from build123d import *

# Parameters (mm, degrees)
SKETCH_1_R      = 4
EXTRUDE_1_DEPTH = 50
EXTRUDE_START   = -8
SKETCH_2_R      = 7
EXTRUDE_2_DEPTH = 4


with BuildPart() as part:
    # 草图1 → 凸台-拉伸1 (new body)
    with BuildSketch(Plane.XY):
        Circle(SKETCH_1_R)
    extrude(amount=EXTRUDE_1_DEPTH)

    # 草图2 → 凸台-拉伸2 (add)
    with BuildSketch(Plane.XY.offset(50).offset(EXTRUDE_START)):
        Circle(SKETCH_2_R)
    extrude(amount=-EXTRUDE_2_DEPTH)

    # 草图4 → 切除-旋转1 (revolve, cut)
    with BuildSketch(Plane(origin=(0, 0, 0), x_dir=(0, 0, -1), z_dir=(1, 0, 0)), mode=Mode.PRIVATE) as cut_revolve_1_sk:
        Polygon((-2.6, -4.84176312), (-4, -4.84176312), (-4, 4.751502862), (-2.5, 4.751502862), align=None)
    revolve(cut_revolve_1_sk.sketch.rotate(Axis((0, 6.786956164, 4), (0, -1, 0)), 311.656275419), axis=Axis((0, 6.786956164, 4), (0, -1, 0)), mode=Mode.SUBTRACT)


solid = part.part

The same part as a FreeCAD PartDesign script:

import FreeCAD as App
import Part
import Sketcher

doc = App.newDocument("Part")
body = doc.addObject("PartDesign::Body", "Body")

# Sketch on XY plane
sketch1 = doc.addObject("Sketcher::SketchObject", "Sketch")
body.addObject(sketch1)
sketch1.AttachmentSupport = (doc.XY_Plane, [""])
sketch1.MapMode = "FlatFace"
sketch1.addGeometry(Part.Circle(App.Vector(0, 0, 0), App.Vector(0, 0, 1), 4), False)
sketch1.addConstraint(Sketcher.Constraint("Coincident", 0, 3, -1, 1))
sketch1.addConstraint(Sketcher.Constraint("Diameter", 0, 8.0))
pad1 = doc.addObject("PartDesign::Pad", "Pad")
body.addObject(pad1)
pad1.Profile = sketch1
pad1.Length = 50

# Sketch on XY plane
sketch2 = doc.addObject("Sketcher::SketchObject", "Sketch001")
body.addObject(sketch2)
sketch2.AttachmentSupport = (doc.XY_Plane, [""])
sketch2.MapMode = "FlatFace"
sketch2.AttachmentOffset = App.Placement(App.Vector(0, 0, 42), App.Rotation())
sketch2.addGeometry(Part.Circle(App.Vector(0, 0, 0), App.Vector(0, 0, 1), 7), False)
sketch2.addConstraint(Sketcher.Constraint("Coincident", 0, 3, -1, 1))
sketch2.addConstraint(Sketcher.Constraint("Diameter", 0, 14.0))
pad2 = doc.addObject("PartDesign::Pad", "Pad001")
body.addObject(pad2)
pad2.Profile = sketch2
pad2.Length = 4
pad2.Reversed = True

# Sketch on YZ plane
sketch3 = doc.addObject("Sketcher::SketchObject", "Sketch002")
body.addObject(sketch3)
sketch3.AttachmentSupport = (doc.YZ_Plane, [""])
sketch3.MapMode = "FlatFace"
sketch3.addGeometry(Part.LineSegment(App.Vector(-4.8, 4, 0), App.Vector(-4.8, 2.6, 0)), False)
sketch3.addGeometry(Part.LineSegment(App.Vector(-4.8, 2.6, 0), App.Vector(4.8, 2.5, 0)), False)
sketch3.addGeometry(Part.LineSegment(App.Vector(4.8, 2.5, 0), App.Vector(4.8, 4, 0)), False)
sketch3.addGeometry(Part.LineSegment(App.Vector(4.8, 4, 0), App.Vector(-4.8, 4, 0)), False)
sketch3.addGeometry(Part.LineSegment(App.Vector(4.8, 4, 0), App.Vector(-4.8, 4, 0)), True)  # axis
sketch3.addConstraint(Sketcher.Constraint("Coincident", 0, 2, 1, 1))
sketch3.addConstraint(Sketcher.Constraint("Coincident", 1, 2, 2, 1))
sketch3.addConstraint(Sketcher.Constraint("Coincident", 2, 2, 3, 1))
sketch3.addConstraint(Sketcher.Constraint("Coincident", 3, 2, 0, 1))
sketch3.addConstraint(Sketcher.Constraint("Vertical", 0))
sketch3.addConstraint(Sketcher.Constraint("Vertical", 2))
sketch3.addConstraint(Sketcher.Constraint("Horizontal", 3))
sketch3.addConstraint(Sketcher.Constraint("Horizontal", 4))
sketch3.addConstraint(Sketcher.Constraint("Coincident", 4, 1, 2, 2))
sketch3.addConstraint(Sketcher.Constraint("Vertical", 0, 2, 4, 2))
sketch3.addConstraint(Sketcher.Constraint("DistanceY", 0, 2, 0, 1, 1.4))
sketch3.addConstraint(Sketcher.Constraint("DistanceY", 2, 1, 2, 2, 1.5))
sketch3.addConstraint(Sketcher.Constraint("DistanceY", -1, 1, 2, 2, 4.0))
sketch3.addConstraint(Sketcher.Constraint("DistanceX", 3, 2, 3, 1, 9.593266))
sketch3.addConstraint(Sketcher.Constraint("DistanceX", 0, 2, -1, 1, 4.841763))
groove = doc.addObject("PartDesign::Groove", "Groove")
body.addObject(groove)
groove.Profile = sketch3
groove.ReferenceAxis = (sketch3, ["Axis0"])
groove.Angle = 360

doc.recompute()
